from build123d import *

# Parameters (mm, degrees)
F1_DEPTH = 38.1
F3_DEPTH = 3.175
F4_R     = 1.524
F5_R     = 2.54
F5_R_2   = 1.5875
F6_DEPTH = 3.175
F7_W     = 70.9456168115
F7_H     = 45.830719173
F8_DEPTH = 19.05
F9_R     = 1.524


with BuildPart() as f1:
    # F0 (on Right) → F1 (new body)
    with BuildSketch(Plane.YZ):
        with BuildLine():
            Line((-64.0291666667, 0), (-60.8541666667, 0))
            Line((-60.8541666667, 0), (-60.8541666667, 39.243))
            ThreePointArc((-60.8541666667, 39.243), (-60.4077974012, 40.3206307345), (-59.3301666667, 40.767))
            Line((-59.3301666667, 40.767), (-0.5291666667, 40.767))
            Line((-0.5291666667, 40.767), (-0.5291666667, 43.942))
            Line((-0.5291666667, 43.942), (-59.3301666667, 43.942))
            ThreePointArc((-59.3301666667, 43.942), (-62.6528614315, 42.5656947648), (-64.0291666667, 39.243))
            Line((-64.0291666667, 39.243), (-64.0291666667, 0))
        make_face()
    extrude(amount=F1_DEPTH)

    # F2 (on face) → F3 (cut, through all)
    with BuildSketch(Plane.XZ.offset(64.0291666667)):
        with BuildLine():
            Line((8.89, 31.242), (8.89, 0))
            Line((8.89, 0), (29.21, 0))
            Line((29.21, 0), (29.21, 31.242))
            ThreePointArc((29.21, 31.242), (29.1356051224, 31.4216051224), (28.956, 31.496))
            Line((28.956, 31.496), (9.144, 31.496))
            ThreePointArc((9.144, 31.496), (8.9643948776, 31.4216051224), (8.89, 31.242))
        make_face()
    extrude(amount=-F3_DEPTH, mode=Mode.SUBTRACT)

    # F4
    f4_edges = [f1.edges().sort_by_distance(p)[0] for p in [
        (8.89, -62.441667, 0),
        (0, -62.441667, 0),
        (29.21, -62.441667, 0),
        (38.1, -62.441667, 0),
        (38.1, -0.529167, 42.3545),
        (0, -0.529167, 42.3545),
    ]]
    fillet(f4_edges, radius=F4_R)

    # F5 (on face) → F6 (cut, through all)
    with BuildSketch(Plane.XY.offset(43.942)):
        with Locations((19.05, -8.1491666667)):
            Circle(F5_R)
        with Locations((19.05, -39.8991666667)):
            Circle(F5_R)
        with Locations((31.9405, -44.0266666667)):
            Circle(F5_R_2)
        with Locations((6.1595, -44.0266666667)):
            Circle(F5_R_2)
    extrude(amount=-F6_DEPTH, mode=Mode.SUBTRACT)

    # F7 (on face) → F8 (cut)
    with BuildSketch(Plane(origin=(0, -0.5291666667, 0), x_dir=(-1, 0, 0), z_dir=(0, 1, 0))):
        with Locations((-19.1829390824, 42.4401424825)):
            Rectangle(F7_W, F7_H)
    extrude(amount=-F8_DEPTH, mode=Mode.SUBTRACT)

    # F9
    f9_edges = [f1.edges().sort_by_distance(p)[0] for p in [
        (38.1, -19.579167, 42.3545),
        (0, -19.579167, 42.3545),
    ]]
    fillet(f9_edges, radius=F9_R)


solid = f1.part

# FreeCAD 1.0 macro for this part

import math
import FreeCAD as App
import Part
import Sketcher
Q = App.Units.Quantity


def edges_at(feature, points):
    """Names of the edges that pass closest to the given points."""
    edges = feature.Shape.Edges
    near = lambda p: min(range(len(edges)), key=lambda i: edges[i].distToShape(Part.Vertex(*p))[0])
    return sorted({f"Edge{near(p) + 1}" for p in points})


def add_polygon(sketch, points):
    """Adds a closed chain of lines whose ends are joined by coincident constraints."""
    first, n = sketch.GeometryCount, len(points)
    for a, b in zip(points, points[1:] + points[:1]):
        sketch.addGeometry(Part.LineSegment(App.Vector(*a, 0), App.Vector(*b, 0)), False)
    for i in range(n):
        sketch.addConstraint(Sketcher.Constraint("Coincident", first + i, 2, first + (i + 1) % n, 1))

doc = App.newDocument("Part")
body = doc.addObject("PartDesign::Body", "Body")

sketch1 = body.newObject("Sketcher::SketchObject", "Sketch")
sketch1.AttachmentSupport = (doc.getObject("YZ_Plane"), [""])
sketch1.MapMode = "FlatFace"
sketch1.addGeometry(Part.LineSegment(App.Vector(-64.029167, 0, 0), App.Vector(-60.854167, 0, 0)), False)
sketch1.addGeometry(Part.LineSegment(App.Vector(-60.854167, 0, 0), App.Vector(-60.854167, 39.243, 0)), False)
sketch1.addGeometry(Part.ArcOfCircle(Part.Circle(App.Vector(-59.330167, 39.243, 0), App.Vector(0, 0, 1), 1.524), math.radians(90), math.radians(180)), False)
sketch1.addGeometry(Part.LineSegment(App.Vector(-59.330167, 40.767, 0), App.Vector(-0.529167, 40.767, 0)), False)
sketch1.addGeometry(Part.LineSegment(App.Vector(-0.529167, 40.767, 0), App.Vector(-0.529167, 43.942, 0)), False)
sketch1.addGeometry(Part.LineSegment(App.Vector(-0.529167, 43.942, 0), App.Vector(-59.330167, 43.942, 0)), False)
sketch1.addGeometry(Part.ArcOfCircle(Part.Circle(App.Vector(-59.330167, 39.243, 0), App.Vector(0, 0, 1), 4.699), math.radians(90), math.radians(180)), False)
sketch1.addGeometry(Part.LineSegment(App.Vector(-64.029167, 39.243, 0), App.Vector(-64.029167, 0, 0)), False)
sketch1.addConstraint(Sketcher.Constraint("Coincident", 0, 2, 1, 1))
sketch1.addConstraint(Sketcher.Constraint("Tangent", 1, 2, 2, 2))
sketch1.addConstraint(Sketcher.Constraint("Tangent", 2, 1, 3, 1))
sketch1.addConstraint(Sketcher.Constraint("Coincident", 3, 2, 4, 1))
sketch1.addConstraint(Sketcher.Constraint("Coincident", 4, 2, 5, 1))
sketch1.addConstraint(Sketcher.Constraint("Tangent", 5, 2, 6, 1))
sketch1.addConstraint(Sketcher.Constraint("Tangent", 6, 2, 7, 1))
sketch1.addConstraint(Sketcher.Constraint("Coincident", 7, 2, 0, 1))
sketch1.addConstraint(Sketcher.Constraint("Horizontal", 0))
sketch1.addConstraint(Sketcher.Constraint("Vertical", 1))
sketch1.addConstraint(Sketcher.Constraint("Horizontal", 3))
sketch1.addConstraint(Sketcher.Constraint("Vertical", 4))
sketch1.addConstraint(Sketcher.Constraint("Horizontal", 5))
sketch1.addConstraint(Sketcher.Constraint("Vertical", 7))
sketch1.addConstraint(Sketcher.Constraint("Coincident", 6, 3, 2, 3))
sketch1.addConstraint(Sketcher.Constraint("PointOnObject", 0, 2, -1))
sketch1.addConstraint(Sketcher.Constraint("Radius", 2, Q("0.06 in")))
sketch1.addConstraint(Sketcher.Constraint("Radius", 6, Q("0.185 in")))
sketch1.addConstraint(Sketcher.Constraint("DistanceX", 3, 1, 3, 2, Q("2.315 in")))
sketch1.addConstraint(Sketcher.Constraint("DistanceY", 1, 1, 1, 2, Q("1.545 in")))
sketch1.addConstraint(Sketcher.Constraint("DistanceX", 2, 3, -1, 1, 59.330167))
pad1 = body.newObject("PartDesign::Pad", "Pad")
pad1.Profile = sketch1
pad1.Length = Q("1.5 in")

sketch2 = body.newObject("Sketcher::SketchObject", "Sketch001")
sketch2.AttachmentSupport = (doc.getObject("XZ_Plane"), [""])
sketch2.MapMode = "FlatFace"
sketch2.AttachmentOffset = App.Placement(App.Vector(0, 0, 64.029167), App.Rotation())
sketch2.addGeometry(Part.LineSegment(App.Vector(8.89, 31.242, 0), App.Vector(8.89, 0, 0)), False)
sketch2.addGeometry(Part.LineSegment(App.Vector(8.89, 0, 0), App.Vector(29.21, 0, 0)), False)
sketch2.addGeometry(Part.LineSegment(App.Vector(29.21, 0, 0), App.Vector(29.21, 31.242, 0)), False)
sketch2.addGeometry(Part.ArcOfCircle(Part.Circle(App.Vector(28.956, 31.242, 0), App.Vector(0, 0, 1), 0.254), math.radians(0), math.radians(90)), False)
sketch2.addGeometry(Part.LineSegment(App.Vector(28.956, 31.496, 0), App.Vector(9.144, 31.496, 0)), False)
sketch2.addGeometry(Part.ArcOfCircle(Part.Circle(App.Vector(9.144, 31.242, 0), App.Vector(0, 0, 1), 0.254), math.radians(90), math.radians(180)), False)
sketch2.addConstraint(Sketcher.Constraint("Coincident", 0, 2, 1, 1))
sketch2.addConstraint(Sketcher.Constraint("Coincident", 1, 2, 2, 1))
sketch2.addConstraint(Sketcher.Constraint("Tangent", 2, 2, 3, 1))
sketch2.addConstraint(Sketcher.Constraint("Tangent", 3, 2, 4, 1))
sketch2.addConstraint(Sketcher.Constraint("Tangent", 4, 2, 5, 1))
sketch2.addConstraint(Sketcher.Constraint("Tangent", 5, 2, 0, 1))
sketch2.addConstraint(Sketcher.Constraint("Vertical", 0))
sketch2.addConstraint(Sketcher.Constraint("Horizontal", 1))
sketch2.addConstraint(Sketcher.Constraint("Vertical", 2))
sketch2.addConstraint(Sketcher.Constraint("Horizontal", 4))
sketch2.addConstraint(Sketcher.Constraint("Equal", 3, 5))
sketch2.addConstraint(Sketcher.Constraint("PointOnObject", 0, 2, -1))
sketch2.addConstraint(Sketcher.Constraint("Radius", 3, Q("0.01 in")))
sketch2.addConstraint(Sketcher.Constraint("DistanceX", 1, 1, 1, 2, Q("0.8 in")))
sketch2.addConstraint(Sketcher.Constraint("DistanceY", 0, 2, 0, 1, Q("1.23 in")))
sketch2.addConstraint(Sketcher.Constraint("DistanceX", -1, 1, 3, 3, Q("1.14 in")))
pocket1 = body.newObject("PartDesign::Pocket", "Pocket")
pocket1.Profile = sketch2
pocket1.Type = "ThroughAll"
doc.recompute()

fillet = body.newObject("PartDesign::Fillet", "Fillet")
fillet.Base = (pocket1, edges_at(pocket1, [
    (8.89, -62.442, 0),
    (0, -62.442, 0),
    (29.21, -62.442, 0),
    (38.1, -62.442, 0),
    (38.1, -0.529, 42.355),
    (0, -0.529, 42.355),
]))
fillet.Radius = Q("0.06 in")

sketch3 = body.newObject("Sketcher::SketchObject", "Sketch002")
sketch3.AttachmentSupport = (doc.getObject("XY_Plane"), [""])
sketch3.MapMode = "FlatFace"
sketch3.AttachmentOffset = App.Placement(App.Vector(0, 0, 1.73 * 25.4), App.Rotation())
sketch3.addGeometry(Part.Circle(App.Vector(19.05, -8.149167, 0), App.Vector(0, 0, 1), 2.54), False)
sketch3.addGeometry(Part.Circle(App.Vector(19.05, -39.899167, 0), App.Vector(0, 0, 1), 2.54), False)
sketch3.addGeometry(Part.Circle(App.Vector(31.9405, -44.026667, 0), App.Vector(0, 0, 1), 1.5875), False)
sketch3.addGeometry(Part.Circle(App.Vector(6.1595, -44.026667, 0), App.Vector(0, 0, 1), 1.5875), False)
sketch3.addConstraint(Sketcher.Constraint("Equal", 0, 1))
sketch3.addConstraint(Sketcher.Constraint("Equal", 2, 3))
sketch3.addConstraint(Sketcher.Constraint("Horizontal", 2, 3, 3, 3))
sketch3.addConstraint(Sketcher.Constraint("Vertical", 0, 3, 1, 3))
sketch3.addConstraint(Sketcher.Constraint("Diameter", 0, Q("0.2 in")))
sketch3.addConstraint(Sketcher.Constraint("Diameter", 2, Q("0.125 in")))
sketch3.addConstraint(Sketcher.Constraint("DistanceX", -1, 1, 0, 3, Q("0.75 in")))
sketch3.addConstraint(Sketcher.Constraint("DistanceY", 1, 3, 0, 3, Q("1.25 in")))
sketch3.addConstraint(Sketcher.Constraint("DistanceX", 3, 3, 2, 3, Q("1.015 in")))
sketch3.addConstraint(Sketcher.Constraint("DistanceX", -1, 1, 2, 3, Q("1.2575 in")))
sketch3.addConstraint(Sketcher.Constraint("DistanceY", 2, 3, 1, 3, Q("0.1625 in")))
sketch3.addConstraint(Sketcher.Constraint("DistanceY", 0, 3, -1, 1, 8.149167))
pocket2 = body.newObject("PartDesign::Pocket", "Pocket001")
pocket2.Profile = sketch3
pocket2.Type = "ThroughAll"

sketch4 = body.newObject("Sketcher::SketchObject", "Sketch003")
sketch4.AttachmentSupport = (doc.getObject("XZ_Plane"), [""])
sketch4.MapMode = "FlatFace"
sketch4.AttachmentOffset = App.Placement(App.Vector(0, 0, 0.529167), App.Rotation())
add_polygon(sketch4, [(54.655747, 65.355502), (54.655747, 19.524783), (-16.289869, 19.524783), (-16.289869, 65.355502)])
sketch4.addConstraint(Sketcher.Constraint("Vertical", 0))
sketch4.addConstraint(Sketcher.Constraint("Horizontal", 1))
sketch4.addConstraint(Sketcher.Constraint("Vertical", 2))
sketch4.addConstraint(Sketcher.Constraint("Horizontal", 3))
sketch4.addConstraint(Sketcher.Constraint("DistanceY", 0, 2, 0, 1, 45.830719))
sketch4.addConstraint(Sketcher.Constraint("DistanceX", 1, 2, 1, 1, 70.945617))
sketch4.addConstraint(Sketcher.Constraint("DistanceX", 1, 2, -1, 1, 16.289869))
sketch4.addConstraint(Sketcher.Constraint("DistanceY", -1, 1, 0, 2, 19.524783))
pocket3 = body.newObject("PartDesign::Pocket", "Pocket002")
pocket3.Profile = sketch4
pocket3.Length = Q("0.75 in")
pocket3.Reversed = True
doc.recompute()

fillet2 = body.newObject("PartDesign::Fillet", "Fillet001")
fillet2.Base = (pocket3, edges_at(pocket3, [(38.1, -19.579, 42.355), (0, -19.579, 42.355)]))
fillet2.Radius = Q("0.06 in")

doc.recompute()
